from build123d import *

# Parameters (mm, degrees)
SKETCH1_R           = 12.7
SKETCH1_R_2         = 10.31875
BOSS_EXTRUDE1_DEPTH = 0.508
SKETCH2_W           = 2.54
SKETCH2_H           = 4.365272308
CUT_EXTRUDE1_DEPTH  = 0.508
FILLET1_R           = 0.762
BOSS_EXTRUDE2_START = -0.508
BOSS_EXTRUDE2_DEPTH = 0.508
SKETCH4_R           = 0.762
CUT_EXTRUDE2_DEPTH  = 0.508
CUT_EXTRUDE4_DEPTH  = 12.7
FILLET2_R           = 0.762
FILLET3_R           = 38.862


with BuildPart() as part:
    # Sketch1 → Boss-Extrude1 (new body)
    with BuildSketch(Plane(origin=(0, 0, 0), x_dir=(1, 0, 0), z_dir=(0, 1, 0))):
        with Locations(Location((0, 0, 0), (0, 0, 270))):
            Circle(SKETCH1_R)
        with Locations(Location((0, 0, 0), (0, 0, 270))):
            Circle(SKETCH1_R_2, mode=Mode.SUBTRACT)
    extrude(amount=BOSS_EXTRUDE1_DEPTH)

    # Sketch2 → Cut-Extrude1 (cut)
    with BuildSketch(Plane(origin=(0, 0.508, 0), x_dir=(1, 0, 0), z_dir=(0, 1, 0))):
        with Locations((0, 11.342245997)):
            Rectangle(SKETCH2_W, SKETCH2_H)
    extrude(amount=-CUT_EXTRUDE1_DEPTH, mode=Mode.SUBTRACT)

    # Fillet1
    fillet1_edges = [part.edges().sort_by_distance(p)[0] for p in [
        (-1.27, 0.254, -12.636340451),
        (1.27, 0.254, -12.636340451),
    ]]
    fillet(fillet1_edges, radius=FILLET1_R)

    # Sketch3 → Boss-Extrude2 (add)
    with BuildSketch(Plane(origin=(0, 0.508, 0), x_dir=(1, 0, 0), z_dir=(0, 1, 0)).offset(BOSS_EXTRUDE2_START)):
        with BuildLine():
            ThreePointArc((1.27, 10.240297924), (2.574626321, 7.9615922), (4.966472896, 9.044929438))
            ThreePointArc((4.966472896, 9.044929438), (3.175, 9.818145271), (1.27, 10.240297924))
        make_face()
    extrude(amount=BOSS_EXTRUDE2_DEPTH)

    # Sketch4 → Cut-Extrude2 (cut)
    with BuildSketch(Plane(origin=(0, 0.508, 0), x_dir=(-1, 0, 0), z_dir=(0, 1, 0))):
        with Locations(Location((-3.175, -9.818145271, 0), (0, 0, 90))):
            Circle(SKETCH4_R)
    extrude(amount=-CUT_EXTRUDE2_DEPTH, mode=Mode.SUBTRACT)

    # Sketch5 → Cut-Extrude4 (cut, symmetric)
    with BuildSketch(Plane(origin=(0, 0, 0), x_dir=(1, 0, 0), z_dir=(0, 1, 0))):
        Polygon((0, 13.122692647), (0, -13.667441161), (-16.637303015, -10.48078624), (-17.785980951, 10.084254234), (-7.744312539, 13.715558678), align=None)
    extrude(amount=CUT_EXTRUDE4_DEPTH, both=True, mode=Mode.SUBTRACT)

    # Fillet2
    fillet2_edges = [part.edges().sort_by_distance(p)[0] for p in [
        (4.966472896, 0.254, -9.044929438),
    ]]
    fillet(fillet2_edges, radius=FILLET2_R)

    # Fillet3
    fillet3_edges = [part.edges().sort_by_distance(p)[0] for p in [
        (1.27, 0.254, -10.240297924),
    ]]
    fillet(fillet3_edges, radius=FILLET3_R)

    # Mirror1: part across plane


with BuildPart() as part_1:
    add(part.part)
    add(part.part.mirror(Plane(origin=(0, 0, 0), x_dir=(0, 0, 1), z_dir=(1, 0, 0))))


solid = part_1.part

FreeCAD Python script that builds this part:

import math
import FreeCAD as App
import Part
import Sketcher
Q = App.Units.Quantity


def edges_at(feature, points):
    """Names of the edges that pass closest to the given points."""
    edges = feature.Shape.Edges
    near = lambda p: min(range(len(edges)), key=lambda i: edges[i].distToShape(Part.Vertex(*p))[0])
    return sorted({f"Edge{near(p) + 1}" for p in points})


def add_polygon(sketch, points):
    """Adds a closed chain of lines whose ends are joined by coincident constraints."""
    first, n = sketch.GeometryCount, len(points)
    for a, b in zip(points, points[1:] + points[:1]):
        sketch.addGeometry(Part.LineSegment(App.Vector(*a, 0), App.Vector(*b, 0)), False)
    for i in range(n):
        sketch.addConstraint(Sketcher.Constraint("Coincident", first + i, 2, first + (i + 1) % n, 1))

doc = App.newDocument("Part")
body = doc.addObject("PartDesign::Body", "Body")

sketch1 = body.newObject("Sketcher::SketchObject", "Sketch")
sketch1.AttachmentSupport = (doc.getObject("XZ_Plane"), [""])
sketch1.MapMode = "FlatFace"
sketch1.addGeometry([
    Part.Circle(App.Vector(0, 0, 0), App.Vector(0, 0, 1), 13),
    Part.Circle(App.Vector(0, 0, 0), App.Vector(0, 0, 1), 10),
], False)
sketch1.addConstraint([
    Sketcher.Constraint("Coincident", 0, 3, -1, 1),
    Sketcher.Constraint("Coincident", 1, 3, -1, 1),
    Sketcher.Constraint("Diameter", 0, Q("1 in")),
    Sketcher.Constraint("Diameter", 1, Q("0.8125 in")),
])
pad1 = body.newObject("PartDesign::Pad", "Pad")
pad1.Profile = sketch1
pad1.Length = Q("0.02 in")
pad1.Reversed = True

sketch2 = body.newObject("Sketcher::SketchObject", "Sketch001")
sketch2.AttachmentSupport = (doc.getObject("XZ_Plane"), [""])
sketch2.MapMode = "FlatFace"
sketch2.AttachmentOffset = App.Placement(App.Vector(0, 0, -0.02 * 25.4), App.Rotation())
add_polygon(sketch2, [(-1.3, -13.5), (-1.3, -9.2), (1.3, -9.2), (1.3, -13.5)])
sketch2.addConstraint([
    Sketcher.Constraint("Vertical", 0),
    Sketcher.Constraint("Horizontal", 1),
    Sketcher.Constraint("Vertical", 2),
    Sketcher.Constraint("Horizontal", 3),
    Sketcher.Constraint("DistanceX", 1, 1, 1, 2, Q("0.1 in")),
    Sketcher.Constraint("DistanceX", 0, 2, -1, 1, Q("0.05 in")),
    Sketcher.Constraint("DistanceY", 0, 1, 0, 2, 4.365272),
    Sketcher.Constraint("DistanceY", 0, 2, -1, 1, 9.15961),
])
pocket1 = body.newObject("PartDesign::Pocket", "Pocket")
pocket1.Profile = sketch2
pocket1.Length = Q("0.02 in")
pocket1.Reversed = True
doc.recompute()

fillet = body.newObject("PartDesign::Fillet", "Fillet")
fillet.Base = (pocket1, edges_at(pocket1, [(-1.27, 0.254, -12.636), (1.27, 0.254, -12.636)]))
fillet.Radius = Q("0.03 in")

sketch3 = body.newObject("Sketcher::SketchObject", "Sketch002")
sketch3.AttachmentSupport = (doc.getObject("XZ_Plane"), [""])
sketch3.MapMode = "FlatFace"
sketch3.addGeometry([
    Part.ArcOfCircle(Part.Circle(App.Vector(3.2, -9.8, 0), App.Vector(0, 0, 1), 2), math.radians(23), math.radians(192)),
    Part.ArcOfCircle(Part.Circle(App.Vector(0, 0, 0), App.Vector(0, 0, 1), 10.3), math.radians(-83), math.radians(-61)),
], False)
sketch3.addConstraint([
    Sketcher.Constraint("Coincident", 0, 1, 1, 2),
    Sketcher.Constraint("Coincident", 1, 1, 0, 2),
    Sketcher.Constraint("Coincident", 1, 3, -1, 1),
    Sketcher.Constraint("Radius", 1, Q("0.40625 in")),
    Sketcher.Constraint("DistanceX", -1, 1, 1, 1, Q("0.05 in")),
    Sketcher.Constraint("DistanceX", -1, 1, 0, 3, Q("0.125 in")),
    Sketcher.Constraint("Radius", 0, 1.951214),
])
pad2 = body.newObject("PartDesign::Pad", "Pad001")
pad2.Profile = sketch3
pad2.Length = Q("0.02 in")
pad2.Reversed = True

sketch4 = body.newObject("Sketcher::SketchObject", "Sketch003")
sketch4.AttachmentSupport = (doc.getObject("XZ_Plane"), [""])
sketch4.MapMode = "FlatFace"
sketch4.AttachmentOffset = App.Placement(App.Vector(0, 0, -0.02 * 25.4), App.Rotation())
sketch4.addGeometry(Part.Circle(App.Vector(3.2, -9.8, 0), App.Vector(0, 0, 1), 0.8), False)
sketch4.addConstraint([
    Sketcher.Constraint("Diameter", 0, Q("0.06 in")),
    Sketcher.Constraint("DistanceX", -1, 1, 0, 3, Q("0.125 in")),
    Sketcher.Constraint("DistanceY", 0, 3, -1, 1, 9.818145),
])
pocket2 = body.newObject("PartDesign::Pocket", "Pocket001")
pocket2.Profile = sketch4
pocket2.Length = Q("0.02 in")
pocket2.Reversed = True

sketch5 = body.newObject("Sketcher::SketchObject", "Sketch004")
sketch5.AttachmentSupport = (doc.getObject("XZ_Plane"), [""])
sketch5.MapMode = "FlatFace"
add_polygon(sketch5, [(0, 14), (0, -13), (-8, -14), (-18, -10), (-17, 10)])
sketch5.addConstraint([
    Sketcher.Constraint("Vertical", 0),
    Sketcher.Constraint("PointOnObject", 0, 2, -2),
    Sketcher.Constraint("DistanceY", 1, 2, 4, 2, 27.383),
    Sketcher.Constraint("DistanceY", 0, 2, 0, 1, 26.790134),
    Sketcher.Constraint("DistanceY", 1, 2, -1, 1, 13.715559),
    Sketcher.Constraint("DistanceX", 2, 2, -1, 1, 17.785981),
    Sketcher.Constraint("DistanceX", 2, 2, 1, 2, 10.041668),
    Sketcher.Constraint("DistanceY", 0, 2, 2, 2, 3.038438),
    Sketcher.Constraint("DistanceY", 2, 2, 3, 2, 20.56504),
    Sketcher.Constraint("DistanceX", 3, 2, 1, 2, 8.89299),
])
pocket3 = body.newObject("PartDesign::Pocket", "Pocket002")
pocket3.Profile = sketch5
pocket3.Length = Q("1 in")
pocket3.Midplane = True
doc.recompute()

fillet2 = body.newObject("PartDesign::Fillet", "Fillet001")
fillet2.Base = (pocket3, edges_at(pocket3, [(4.966, 0.254, -9.045)]))
fillet2.Radius = Q("0.03 in")
doc.recompute()

fillet3 = body.newObject("PartDesign::Fillet", "Fillet002")
fillet3.Base = (fillet2, edges_at(fillet2, [(1.27, 0.254, -10.24)]))
fillet3.Radius = Q("1.53 in")
body2 = doc.addObject("PartDesign::Body", "Body001")
doc.recompute()

body2.BaseFeature = body
doc.recompute()

mirroring = doc.addObject("Part::Mirroring", "Mirroring")
mirroring.Source = body
mirroring.Base = App.Vector(0, 0, 0)
mirroring.Normal = App.Vector(1, 0, 0)
body3 = doc.addObject("PartDesign::Body", "Body002")
body3.BaseFeature = mirroring
boolean = body2.newObject("PartDesign::Boolean", "Boolean")
boolean.Type = "Fuse"
boolean.addObjects([body3])
doc.recompute()
mirroring.Visibility = False

doc.recompute()
